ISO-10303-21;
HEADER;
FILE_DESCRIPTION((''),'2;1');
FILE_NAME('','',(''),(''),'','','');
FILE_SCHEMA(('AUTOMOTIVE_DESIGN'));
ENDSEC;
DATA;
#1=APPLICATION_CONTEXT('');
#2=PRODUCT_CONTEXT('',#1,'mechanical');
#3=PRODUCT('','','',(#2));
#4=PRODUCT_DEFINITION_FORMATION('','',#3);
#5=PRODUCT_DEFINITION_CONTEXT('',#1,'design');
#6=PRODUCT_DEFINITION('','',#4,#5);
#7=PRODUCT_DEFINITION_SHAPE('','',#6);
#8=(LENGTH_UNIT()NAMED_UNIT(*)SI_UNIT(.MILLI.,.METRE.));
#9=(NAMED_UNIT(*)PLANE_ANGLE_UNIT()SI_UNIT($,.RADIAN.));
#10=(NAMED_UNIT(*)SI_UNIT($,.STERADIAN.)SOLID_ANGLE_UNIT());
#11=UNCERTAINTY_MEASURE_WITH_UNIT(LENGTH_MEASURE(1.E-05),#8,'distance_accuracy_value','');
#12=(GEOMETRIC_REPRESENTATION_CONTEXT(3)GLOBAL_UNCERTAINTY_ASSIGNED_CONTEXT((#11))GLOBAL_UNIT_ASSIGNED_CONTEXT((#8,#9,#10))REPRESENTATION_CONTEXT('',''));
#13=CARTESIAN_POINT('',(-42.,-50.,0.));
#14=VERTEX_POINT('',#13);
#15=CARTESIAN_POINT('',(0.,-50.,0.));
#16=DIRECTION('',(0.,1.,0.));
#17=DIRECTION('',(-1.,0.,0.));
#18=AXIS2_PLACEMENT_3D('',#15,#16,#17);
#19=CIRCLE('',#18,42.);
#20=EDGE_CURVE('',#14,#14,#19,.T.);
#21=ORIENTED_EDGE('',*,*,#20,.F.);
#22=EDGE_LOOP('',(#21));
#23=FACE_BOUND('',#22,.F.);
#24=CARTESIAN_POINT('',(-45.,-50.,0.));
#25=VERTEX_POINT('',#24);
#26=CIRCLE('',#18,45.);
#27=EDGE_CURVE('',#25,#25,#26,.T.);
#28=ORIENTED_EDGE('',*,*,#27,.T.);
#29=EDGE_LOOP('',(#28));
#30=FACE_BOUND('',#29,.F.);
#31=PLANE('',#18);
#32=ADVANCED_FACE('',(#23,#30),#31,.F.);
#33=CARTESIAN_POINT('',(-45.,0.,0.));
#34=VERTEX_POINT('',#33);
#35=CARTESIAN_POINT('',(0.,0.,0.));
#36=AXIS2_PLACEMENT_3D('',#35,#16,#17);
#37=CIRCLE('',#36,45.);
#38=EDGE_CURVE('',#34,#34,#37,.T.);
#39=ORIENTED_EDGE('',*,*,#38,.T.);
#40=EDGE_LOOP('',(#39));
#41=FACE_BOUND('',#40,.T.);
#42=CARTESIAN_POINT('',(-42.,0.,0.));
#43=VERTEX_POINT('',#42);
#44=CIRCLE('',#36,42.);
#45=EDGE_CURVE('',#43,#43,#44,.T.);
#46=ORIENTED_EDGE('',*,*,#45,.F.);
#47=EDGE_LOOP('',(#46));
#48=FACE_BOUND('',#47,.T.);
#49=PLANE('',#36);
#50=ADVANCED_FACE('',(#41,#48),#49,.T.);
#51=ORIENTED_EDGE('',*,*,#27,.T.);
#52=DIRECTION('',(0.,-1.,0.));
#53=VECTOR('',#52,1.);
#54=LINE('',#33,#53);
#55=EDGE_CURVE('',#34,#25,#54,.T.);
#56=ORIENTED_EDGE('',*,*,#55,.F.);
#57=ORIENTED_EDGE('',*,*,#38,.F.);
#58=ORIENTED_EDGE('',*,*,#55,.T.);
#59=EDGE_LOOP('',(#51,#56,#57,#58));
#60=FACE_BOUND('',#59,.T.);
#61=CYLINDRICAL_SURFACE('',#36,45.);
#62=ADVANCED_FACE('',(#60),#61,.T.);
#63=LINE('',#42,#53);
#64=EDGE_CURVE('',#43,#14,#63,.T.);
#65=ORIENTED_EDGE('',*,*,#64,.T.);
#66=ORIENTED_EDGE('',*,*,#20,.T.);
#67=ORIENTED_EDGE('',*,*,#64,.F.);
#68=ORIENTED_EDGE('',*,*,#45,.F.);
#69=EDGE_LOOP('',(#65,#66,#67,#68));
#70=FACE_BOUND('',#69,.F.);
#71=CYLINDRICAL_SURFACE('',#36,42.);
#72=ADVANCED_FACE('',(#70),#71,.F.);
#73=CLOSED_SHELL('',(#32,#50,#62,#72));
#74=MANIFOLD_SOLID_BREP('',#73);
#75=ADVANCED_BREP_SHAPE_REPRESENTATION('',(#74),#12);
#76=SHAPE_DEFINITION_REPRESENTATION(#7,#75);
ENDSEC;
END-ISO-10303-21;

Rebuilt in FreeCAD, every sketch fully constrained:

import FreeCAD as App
import Part
import Sketcher

V = App.Vector

doc = App.newDocument("Part")
body = doc.addObject("PartDesign::Body", "Body")

sketch1 = body.newObject("Sketcher::SketchObject", "Sketch")
sketch1.AttachmentSupport = (doc.getObject("XZ_Plane"), [""])
sketch1.MapMode = "FlatFace"
sketch1.addGeometry(Part.Circle(V(0, 0, 0), V(0, 0, 1), 45), False)
sketch1.addGeometry(Part.Circle(V(0, 0, 0), V(0, 0, 1), 42), False)
sketch1.addConstraint(Sketcher.Constraint("Coincident", 0, 3, -1, 1))
sketch1.addConstraint(Sketcher.Constraint("Coincident", 1, 3, -1, 1))
sketch1.addConstraint(Sketcher.Constraint("Diameter", 0, 90.0))
sketch1.addConstraint(Sketcher.Constraint("Diameter", 1, 84.0))
pad1 = body.newObject("PartDesign::Pad", "Pad")
pad1.Profile = sketch1
pad1.Length = 50

doc.recompute()
